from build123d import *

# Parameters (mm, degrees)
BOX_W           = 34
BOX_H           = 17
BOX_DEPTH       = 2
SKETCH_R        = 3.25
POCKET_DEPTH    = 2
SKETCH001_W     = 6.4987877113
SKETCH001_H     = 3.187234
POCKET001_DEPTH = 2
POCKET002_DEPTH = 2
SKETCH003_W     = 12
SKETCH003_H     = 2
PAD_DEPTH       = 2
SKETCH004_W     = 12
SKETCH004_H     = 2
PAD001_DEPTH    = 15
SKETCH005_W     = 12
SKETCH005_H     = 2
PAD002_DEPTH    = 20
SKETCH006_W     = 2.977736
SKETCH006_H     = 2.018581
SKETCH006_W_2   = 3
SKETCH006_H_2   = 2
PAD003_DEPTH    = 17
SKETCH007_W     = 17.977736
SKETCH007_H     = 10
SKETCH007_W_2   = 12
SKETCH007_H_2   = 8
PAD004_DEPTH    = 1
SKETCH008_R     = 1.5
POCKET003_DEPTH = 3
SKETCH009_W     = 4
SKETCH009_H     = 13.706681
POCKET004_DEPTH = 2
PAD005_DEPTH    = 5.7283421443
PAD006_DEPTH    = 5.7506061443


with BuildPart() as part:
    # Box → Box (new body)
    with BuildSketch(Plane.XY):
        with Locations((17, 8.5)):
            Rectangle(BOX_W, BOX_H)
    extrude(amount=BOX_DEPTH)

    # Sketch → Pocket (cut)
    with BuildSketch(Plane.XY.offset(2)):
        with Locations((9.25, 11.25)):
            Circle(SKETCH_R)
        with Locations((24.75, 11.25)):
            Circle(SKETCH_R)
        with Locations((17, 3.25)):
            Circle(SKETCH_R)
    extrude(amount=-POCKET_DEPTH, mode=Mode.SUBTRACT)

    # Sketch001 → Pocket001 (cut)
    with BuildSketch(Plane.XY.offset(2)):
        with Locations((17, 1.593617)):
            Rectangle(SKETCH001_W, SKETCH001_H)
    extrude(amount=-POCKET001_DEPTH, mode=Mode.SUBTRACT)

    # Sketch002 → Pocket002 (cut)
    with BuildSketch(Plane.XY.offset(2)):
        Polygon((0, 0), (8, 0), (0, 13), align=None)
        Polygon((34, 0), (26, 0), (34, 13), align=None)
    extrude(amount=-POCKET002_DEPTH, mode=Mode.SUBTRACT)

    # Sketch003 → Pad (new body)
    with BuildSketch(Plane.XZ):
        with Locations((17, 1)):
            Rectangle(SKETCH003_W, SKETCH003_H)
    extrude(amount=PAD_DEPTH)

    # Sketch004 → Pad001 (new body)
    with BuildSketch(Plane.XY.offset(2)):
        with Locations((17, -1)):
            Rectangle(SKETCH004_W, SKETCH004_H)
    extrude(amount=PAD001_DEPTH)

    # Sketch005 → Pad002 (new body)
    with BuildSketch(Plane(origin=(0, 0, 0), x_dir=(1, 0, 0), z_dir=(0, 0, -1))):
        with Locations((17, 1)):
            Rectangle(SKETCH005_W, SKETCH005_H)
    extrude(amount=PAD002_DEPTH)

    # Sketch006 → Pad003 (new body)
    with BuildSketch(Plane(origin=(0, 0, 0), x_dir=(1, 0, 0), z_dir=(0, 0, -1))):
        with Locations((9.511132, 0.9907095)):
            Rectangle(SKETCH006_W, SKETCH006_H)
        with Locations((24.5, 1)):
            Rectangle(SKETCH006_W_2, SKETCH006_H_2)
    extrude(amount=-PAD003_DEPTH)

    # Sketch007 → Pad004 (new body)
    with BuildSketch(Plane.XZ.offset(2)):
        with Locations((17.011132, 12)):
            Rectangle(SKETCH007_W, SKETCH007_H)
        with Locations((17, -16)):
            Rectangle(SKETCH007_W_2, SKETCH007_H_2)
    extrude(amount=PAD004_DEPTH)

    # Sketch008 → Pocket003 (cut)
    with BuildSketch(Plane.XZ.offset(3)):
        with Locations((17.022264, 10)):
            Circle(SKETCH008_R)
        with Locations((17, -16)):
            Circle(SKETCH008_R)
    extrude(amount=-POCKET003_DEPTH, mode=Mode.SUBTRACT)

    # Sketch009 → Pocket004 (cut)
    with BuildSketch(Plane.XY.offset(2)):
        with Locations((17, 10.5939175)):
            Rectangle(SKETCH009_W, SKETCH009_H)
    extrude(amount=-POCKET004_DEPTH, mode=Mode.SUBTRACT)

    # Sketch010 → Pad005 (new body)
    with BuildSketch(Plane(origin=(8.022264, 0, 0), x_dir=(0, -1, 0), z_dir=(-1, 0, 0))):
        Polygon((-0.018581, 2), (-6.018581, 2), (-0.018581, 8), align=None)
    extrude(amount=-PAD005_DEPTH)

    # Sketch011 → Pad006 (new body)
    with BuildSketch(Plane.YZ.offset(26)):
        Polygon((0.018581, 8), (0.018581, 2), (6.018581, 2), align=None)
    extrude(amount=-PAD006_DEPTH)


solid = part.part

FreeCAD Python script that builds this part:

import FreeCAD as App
import Part
import Sketcher
Q = App.Units.Quantity

doc = App.newDocument("Part")
params = doc.addObject("Spreadsheet::Sheet", "Params")
for row, (alias, value) in enumerate([
    ("sketch1_width", "34 mm"),
    ("sketch1_height", "17 mm"),
    ("pad1_length", "2 mm"),
    ("sketch2_diameter", "6.5 mm"),
    ("pocket1_length", "2 mm"),
    ("pocket2_length", "2 mm"),
    ("sketch4_width", "8 mm"),
    ("sketch4_height", "13 mm"),
    ("pocket3_length", "2 mm"),
    ("sketch5_width", "12 mm"),
    ("sketch5_height", "2 mm"),
    ("pad2_length", "2 mm"),
    ("sketch6_width", "12 mm"),
    ("sketch6_height", "2 mm"),
    ("pad3_length", "15 mm"),
    ("sketch7_width", "12 mm"),
    ("sketch7_height", "2 mm"),
    ("pad4_length", "20 mm"),
    ("sketch8_width", "3 mm"),
    ("sketch8_height", "2 mm"),
    ("pad5_length", "17 mm"),
    ("sketch9_width", "12 mm"),
    ("sketch9_height", "10 mm"),
    ("sketch9_height2", "8 mm"),
    ("pad6_length", "1 mm"),
    ("sketch10_diameter", "3 mm"),
    ("pocket4_length", "3 mm"),
    ("sketch11_width", "4 mm"),
    ("pocket5_length", "2 mm"),
    ("sketch12_width", "6 mm"),
    ("pad7_length", "5.728342 mm"),
    ("sketch13_width", "6 mm"),
    ("pad8_length", "5.750606 mm"),
], start=1):
    params.set(f"A{row}", alias)
    params.set(f"B{row}", "=" + value)
    params.setAlias(f"B{row}", alias)

body = doc.addObject("PartDesign::Body", "Body")

# Sketch on XY plane
sketch1 = doc.addObject("Sketcher::SketchObject", "Sketch")
body.addObject(sketch1)
sketch1.AttachmentSupport = (doc.XY_Plane, [""])
sketch1.MapMode = "FlatFace"
sketch1.addGeometry([
    Part.LineSegment(App.Vector(0, 17, 0), App.Vector(0, 0, 0)),
    Part.LineSegment(App.Vector(0, 0, 0), App.Vector(34, 0, 0)),
    Part.LineSegment(App.Vector(34, 0, 0), App.Vector(34, 17, 0)),
    Part.LineSegment(App.Vector(34, 17, 0), App.Vector(0, 17, 0)),
], False)
sketch1.addConstraint([
    Sketcher.Constraint("Coincident", 0, 2, 1, 1),
    Sketcher.Constraint("Coincident", 1, 2, 2, 1),
    Sketcher.Constraint("Coincident", 2, 2, 3, 1),
    Sketcher.Constraint("Coincident", 3, 2, 0, 1),
    Sketcher.Constraint("Vertical", 0),
    Sketcher.Constraint("Horizontal", 1),
    Sketcher.Constraint("Vertical", 2),
    Sketcher.Constraint("Horizontal", 3),
    Sketcher.Constraint("Coincident", 0, 2, -1, 1),
    Sketcher.Constraint("DistanceX", 1, 1, 1, 2, Q("34 mm")),
    Sketcher.Constraint("DistanceY", 0, 2, 0, 1, Q("17 mm")),
])
sketch1.setExpression("Constraints[9]", "Params.sketch1_width")
sketch1.setExpression("Constraints[10]", "Params.sketch1_height")
pad1 = doc.addObject("PartDesign::Pad", "Pad")
body.addObject(pad1)
pad1.Profile = sketch1
pad1.setExpression("Length", "Params.pad1_length")

# Sketch on XY plane
sketch2 = doc.addObject("Sketcher::SketchObject", "Sketch001")
body.addObject(sketch2)
sketch2.AttachmentSupport = (doc.XY_Plane, [""])
sketch2.MapMode = "FlatFace"
sketch2.AttachmentOffset = App.Placement(App.Vector(0, 0, 2), App.Rotation())
sketch2.addGeometry([
    Part.Circle(App.Vector(9.2, 11.2, 0), App.Vector(0, 0, 1), 3.2),
    Part.Circle(App.Vector(24.8, 11.2, 0), App.Vector(0, 0, 1), 3.2),
    Part.Circle(App.Vector(17, 3.2, 0), App.Vector(0, 0, 1), 3.2),
], False)
sketch2.addConstraint([
    Sketcher.Constraint("Equal", 0, 1),
    Sketcher.Constraint("Equal", 1, 2),
    Sketcher.Constraint("Horizontal", 0, 3, 1, 3),
    Sketcher.Constraint("Diameter", 0, Q("6.5 mm")),
    Sketcher.Constraint("DistanceX", -1, 1, 2, 3, Q("17 mm")),
    Sketcher.Constraint("DistanceY", 2, 3, 0, 3, Q("8 mm")),
    Sketcher.Constraint("DistanceX", 0, 3, 1, 3, Q("15.5 mm")),
    Sketcher.Constraint("DistanceX", -1, 1, 0, 3, Q("9.25 mm")),
    Sketcher.Constraint("DistanceY", -1, 1, 0, 3, Q("11.25 mm")),
])
sketch2.setExpression("Constraints[3]", "Params.sketch2_diameter")
pocket1 = doc.addObject("PartDesign::Pocket", "Pocket")
body.addObject(pocket1)
pocket1.Profile = sketch2
pocket1.setExpression("Length", "Params.pocket1_length")

# Sketch on XY plane
sketch3 = doc.addObject("Sketcher::SketchObject", "Sketch002")
body.addObject(sketch3)
sketch3.AttachmentSupport = (doc.XY_Plane, [""])
sketch3.MapMode = "FlatFace"
sketch3.AttachmentOffset = App.Placement(App.Vector(0, 0, 2), App.Rotation())
sketch3.addGeometry([
    Part.LineSegment(App.Vector(13.8, 3.2, 0), App.Vector(13.8, 0, 0)),
    Part.LineSegment(App.Vector(13.8, 0, 0), App.Vector(20.2, 0, 0)),
    Part.LineSegment(App.Vector(20.2, 0, 0), App.Vector(20.2, 3.2, 0)),
    Part.LineSegment(App.Vector(20.2, 3.2, 0), App.Vector(13.8, 3.2, 0)),
], False)
sketch3.addConstraint([
    Sketcher.Constraint("Coincident", 0, 2, 1, 1),
    Sketcher.Constraint("Coincident", 1, 2, 2, 1),
    Sketcher.Constraint("Coincident", 2, 2, 3, 1),
    Sketcher.Constraint("Coincident", 3, 2, 0, 1),
    Sketcher.Constraint("Vertical", 0),
    Sketcher.Constraint("Horizontal", 1),
    Sketcher.Constraint("Vertical", 2),
    Sketcher.Constraint("Horizontal", 3),
    Sketcher.Constraint("PointOnObject", 0, 2, -1),
    Sketcher.Constraint("DistanceX", 1, 1, 1, 2, Q("6.498788 mm")),
    Sketcher.Constraint("DistanceY", 0, 2, 0, 1, Q("3.187234 mm")),
    Sketcher.Constraint("DistanceX", -1, 1, 0, 2, Q("13.750606 mm")),
])
pocket2 = doc.addObject("PartDesign::Pocket", "Pocket001")
body.addObject(pocket2)
pocket2.Profile = sketch3
pocket2.setExpression("Length", "Params.pocket2_length")

# Sketch on XY plane
sketch4 = doc.addObject("Sketcher::SketchObject", "Sketch003")
body.addObject(sketch4)
sketch4.AttachmentSupport = (doc.XY_Plane, [""])
sketch4.MapMode = "FlatFace"
sketch4.AttachmentOffset = App.Placement(App.Vector(0, 0, 2), App.Rotation())
sketch4.addGeometry([
    Part.LineSegment(App.Vector(0, 0, 0), App.Vector(8, 0, 0)),  # 0
    Part.LineSegment(App.Vector(8, 0, 0), App.Vector(0, 13, 0)),  # 1
    Part.LineSegment(App.Vector(0, 13, 0), App.Vector(0, 0, 0)),  # 2
    Part.LineSegment(App.Vector(26, 0, 0), App.Vector(34, 0, 0)),  # 3
    Part.LineSegment(App.Vector(34, 0, 0), App.Vector(34, 13, 0)),  # 4
    Part.LineSegment(App.Vector(34, 13, 0), App.Vector(26, 0, 0)),  # 5
], False)
sketch4.addConstraint([
    Sketcher.Constraint("Coincident", 0, 2, 1, 1),
    Sketcher.Constraint("Coincident", 1, 2, 2, 1),
    Sketcher.Constraint("Coincident", 2, 2, 0, 1),
    Sketcher.Constraint("Coincident", 3, 2, 4, 1),
    Sketcher.Constraint("Coincident", 4, 2, 5, 1),
    Sketcher.Constraint("Coincident", 5, 2, 3, 1),
    Sketcher.Constraint("Horizontal", 0),
    Sketcher.Constraint("Vertical", 2),
    Sketcher.Constraint("Horizontal", 3),
    Sketcher.Constraint("Vertical", 4),
    Sketcher.Constraint("Coincident", 2, 2, -1, 1),
    Sketcher.Constraint("PointOnObject", 3, 2, -1),
    Sketcher.Constraint("Horizontal", 1, 2, 4, 2),
    Sketcher.Constraint("Equal", 0, 3),
    Sketcher.Constraint("DistanceX", 0, 1, 0, 2, Q("8 mm")),
    Sketcher.Constraint("DistanceY", 2, 2, 2, 1, Q("13 mm")),
    Sketcher.Constraint("DistanceX", -1, 1, 3, 2, Q("34 mm")),
])
sketch4.setExpression("Constraints[14]", "Params.sketch4_width")
sketch4.setExpression("Constraints[15]", "Params.sketch4_height")
pocket3 = doc.addObject("PartDesign::Pocket", "Pocket002")
body.addObject(pocket3)
pocket3.Profile = sketch4
pocket3.setExpression("Length", "Params.pocket3_length")

# Sketch on XZ plane
sketch5 = doc.addObject("Sketcher::SketchObject", "Sketch004")
body.addObject(sketch5)
sketch5.AttachmentSupport = (doc.XZ_Plane, [""])
sketch5.MapMode = "FlatFace"
sketch5.addGeometry([
    Part.LineSegment(App.Vector(11, 2, 0), App.Vector(11, 0, 0)),
    Part.LineSegment(App.Vector(11, 0, 0), App.Vector(23, 0, 0)),
    Part.LineSegment(App.Vector(23, 0, 0), App.Vector(23, 2, 0)),
    Part.LineSegment(App.Vector(23, 2, 0), App.Vector(11, 2, 0)),
], False)
sketch5.addConstraint([
    Sketcher.Constraint("Coincident", 0, 2, 1, 1),
    Sketcher.Constraint("Coincident", 1, 2, 2, 1),
    Sketcher.Constraint("Coincident", 2, 2, 3, 1),
    Sketcher.Constraint("Coincident", 3, 2, 0, 1),
    Sketcher.Constraint("Vertical", 0),
    Sketcher.Constraint("Horizontal", 1),
    Sketcher.Constraint("Vertical", 2),
    Sketcher.Constraint("Horizontal", 3),
    Sketcher.Constraint("PointOnObject", 0, 2, -1),
    Sketcher.Constraint("DistanceX", 1, 1, 1, 2, Q("12 mm")),
    Sketcher.Constraint("DistanceY", 0, 2, 0, 1, Q("2 mm")),
    Sketcher.Constraint("DistanceX", -1, 1, 0, 2, Q("11 mm")),
])
sketch5.setExpression("Constraints[9]", "Params.sketch5_width")
sketch5.setExpression("Constraints[10]", "Params.sketch5_height")
pad2 = doc.addObject("PartDesign::Pad", "Pad001")
body.addObject(pad2)
pad2.Profile = sketch5
pad2.setExpression("Length", "Params.pad2_length")

# Sketch on XY plane
sketch6 = doc.addObject("Sketcher::SketchObject", "Sketch005")
body.addObject(sketch6)
sketch6.AttachmentSupport = (doc.XY_Plane, [""])
sketch6.MapMode = "FlatFace"
sketch6.AttachmentOffset = App.Placement(App.Vector(0, 0, 2), App.Rotation())
sketch6.addGeometry([
    Part.LineSegment(App.Vector(11, 0, 0), App.Vector(11, -2, 0)),
    Part.LineSegment(App.Vector(11, -2, 0), App.Vector(23, -2, 0)),
    Part.LineSegment(App.Vector(23, -2, 0), App.Vector(23, 0, 0)),
    Part.LineSegment(App.Vector(23, 0, 0), App.Vector(11, 0, 0)),
], False)
sketch6.addConstraint([
    Sketcher.Constraint("Coincident", 0, 2, 1, 1),
    Sketcher.Constraint("Coincident", 1, 2, 2, 1),
    Sketcher.Constraint("Coincident", 2, 2, 3, 1),
    Sketcher.Constraint("Coincident", 3, 2, 0, 1),
    Sketcher.Constraint("Vertical", 0),
    Sketcher.Constraint("Horizontal", 1),
    Sketcher.Constraint("Vertical", 2),
    Sketcher.Constraint("Horizontal", 3),
    Sketcher.Constraint("PointOnObject", 2, 2, -1),
    Sketcher.Constraint("DistanceX", 1, 1, 1, 2, Q("12 mm")),
    Sketcher.Constraint("DistanceY", 0, 2, 0, 1, Q("2 mm")),
    Sketcher.Constraint("DistanceX", -1, 1, 0, 2, Q("11 mm")),
])
sketch6.setExpression("Constraints[9]", "Params.sketch6_width")
sketch6.setExpression("Constraints[10]", "Params.sketch6_height")
pad3 = doc.addObject("PartDesign::Pad", "Pad002")
body.addObject(pad3)
pad3.Profile = sketch6
pad3.setExpression("Length", "Params.pad3_length")

# Sketch on XY plane
sketch7 = doc.addObject("Sketcher::SketchObject", "Sketch006")
body.addObject(sketch7)
sketch7.AttachmentSupport = (doc.XY_Plane, [""])
sketch7.MapMode = "FlatFace"
sketch7.addGeometry([
    Part.LineSegment(App.Vector(11, -2, 0), App.Vector(11, 0, 0)),
    Part.LineSegment(App.Vector(11, 0, 0), App.Vector(23, 0, 0)),
    Part.LineSegment(App.Vector(23, 0, 0), App.Vector(23, -2, 0)),
    Part.LineSegment(App.Vector(23, -2, 0), App.Vector(11, -2, 0)),
], False)
sketch7.addConstraint([
    Sketcher.Constraint("Coincident", 0, 2, 1, 1),
    Sketcher.Constraint("Coincident", 1, 2, 2, 1),
    Sketcher.Constraint("Coincident", 2, 2, 3, 1),
    Sketcher.Constraint("Coincident", 3, 2, 0, 1),
    Sketcher.Constraint("Vertical", 0),
    Sketcher.Constraint("Horizontal", 1),
    Sketcher.Constraint("Vertical", 2),
    Sketcher.Constraint("Horizontal", 3),
    Sketcher.Constraint("PointOnObject", 0, 2, -1),
    Sketcher.Constraint("DistanceX", 1, 1, 1, 2, Q("12 mm")),
    Sketcher.Constraint("DistanceY", 0, 1, 0, 2, Q("2 mm")),
    Sketcher.Constraint("DistanceX", -1, 1, 0, 2, Q("11 mm")),
])
sketch7.setExpression("Constraints[9]", "Params.sketch7_width")
sketch7.setExpression("Constraints[10]", "Params.sketch7_height")
pad4 = doc.addObject("PartDesign::Pad", "Pad003")
body.addObject(pad4)
pad4.Profile = sketch7
pad4.setExpression("Length", "Params.pad4_length")
pad4.Reversed = True

# Sketch on XY plane
sketch8 = doc.addObject("Sketcher::SketchObject", "Sketch007")
body.addObject(sketch8)
sketch8.AttachmentSupport = (doc.XY_Plane, [""])
sketch8.MapMode = "FlatFace"
sketch8.addGeometry([
    Part.LineSegment(App.Vector(8, -2, 0), App.Vector(8, 0, 0)),  # 0
    Part.LineSegment(App.Vector(8, 0, 0), App.Vector(11, 0, 0)),  # 1
    Part.LineSegment(App.Vector(11, 0, 0), App.Vector(11, -2, 0)),  # 2
    Part.LineSegment(App.Vector(11, -2, 0), App.Vector(8, -2, 0)),  # 3
    Part.LineSegment(App.Vector(23, -2, 0), App.Vector(23, 0, 0)),  # 4
    Part.LineSegment(App.Vector(23, 0, 0), App.Vector(26, 0, 0)),  # 5
    Part.LineSegment(App.Vector(26, 0, 0), App.Vector(26, -2, 0)),  # 6
    Part.LineSegment(App.Vector(26, -2, 0), App.Vector(23, -2, 0)),  # 7
], False)
sketch8.addConstraint([
    Sketcher.Constraint("Coincident", 0, 2, 1, 1),
    Sketcher.Constraint("Coincident", 1, 2, 2, 1),
    Sketcher.Constraint("Coincident", 2, 2, 3, 1),
    Sketcher.Constraint("Coincident", 3, 2, 0, 1),
    Sketcher.Constraint("Coincident", 4, 2, 5, 1),
    Sketcher.Constraint("Coincident", 5, 2, 6, 1),
    Sketcher.Constraint("Coincident", 6, 2, 7, 1),
    Sketcher.Constraint("Coincident", 7, 2, 4, 1),
    Sketcher.Constraint("Vertical", 0),
    Sketcher.Constraint("Horizontal", 1),
    Sketcher.Constraint("Vertical", 2),
    Sketcher.Constraint("Horizontal", 3),
    Sketcher.Constraint("Vertical", 4),
    Sketcher.Constraint("Horizontal", 5),
    Sketcher.Constraint("Vertical", 6),
    Sketcher.Constraint("Horizontal", 7),
    Sketcher.Constraint("PointOnObject", 4, 2, -1),
    Sketcher.Constraint("Horizontal", 3, 2, 6, 2),
    Sketcher.Constraint("DistanceX", 5, 1, 5, 2, Q("3 mm")),
    Sketcher.Constraint("DistanceY", 4, 1, 4, 2, Q("2 mm")),
    Sketcher.Constraint("DistanceX", -1, 1, 1, 2, Q("11 mm")),
    Sketcher.Constraint("DistanceX", -1, 1, 4, 2, Q("23 mm")),
    Sketcher.Constraint("DistanceY", 0, 1, 0, 2, Q("2.018581 mm")),
    Sketcher.Constraint("DistanceX", 1, 1, 1, 2, Q("2.977736 mm")),
])
sketch8.setExpression("Constraints[18]", "Params.sketch8_width")
sketch8.setExpression("Constraints[19]", "Params.sketch8_height")
pad5 = doc.addObject("PartDesign::Pad", "Pad004")
body.addObject(pad5)
pad5.Profile = sketch8
pad5.setExpression("Length", "Params.pad5_length")

# Sketch on XZ plane
sketch9 = doc.addObject("Sketcher::SketchObject", "Sketch008")
body.addObject(sketch9)
sketch9.AttachmentSupport = (doc.XZ_Plane, [""])
sketch9.MapMode = "FlatFace"
sketch9.AttachmentOffset = App.Placement(App.Vector(0, 0, 2), App.Rotation())
sketch9.addGeometry([
    Part.LineSegment(App.Vector(8, 17, 0), App.Vector(8, 7, 0)),  # 0
    Part.LineSegment(App.Vector(8, 7, 0), App.Vector(26, 7, 0)),  # 1
    Part.LineSegment(App.Vector(26, 7, 0), App.Vector(26, 17, 0)),  # 2
    Part.LineSegment(App.Vector(26, 17, 0), App.Vector(8, 17, 0)),  # 3
    Part.LineSegment(App.Vector(11, -12, 0), App.Vector(11, -20, 0)),  # 4
    Part.LineSegment(App.Vector(11, -20, 0), App.Vector(23, -20, 0)),  # 5
    Part.LineSegment(App.Vector(23, -20, 0), App.Vector(23, -12, 0)),  # 6
    Part.LineSegment(App.Vector(23, -12, 0), App.Vector(11, -12, 0)),  # 7
], False)
sketch9.addConstraint([
    Sketcher.Constraint("Coincident", 0, 2, 1, 1),
    Sketcher.Constraint("Coincident", 1, 2, 2, 1),
    Sketcher.Constraint("Coincident", 2, 2, 3, 1),
    Sketcher.Constraint("Coincident", 3, 2, 0, 1),
    Sketcher.Constraint("Coincident", 4, 2, 5, 1),
    Sketcher.Constraint("Coincident", 5, 2, 6, 1),
    Sketcher.Constraint("Coincident", 6, 2, 7, 1),
    Sketcher.Constraint("Coincident", 7, 2, 4, 1),
    Sketcher.Constraint("Vertical", 0),
    Sketcher.Constraint("Horizontal", 1),
    Sketcher.Constraint("Vertical", 2),
    Sketcher.Constraint("Horizontal", 3),
    Sketcher.Constraint("Vertical", 4),
    Sketcher.Constraint("Horizontal", 5),
    Sketcher.Constraint("Vertical", 6),
    Sketcher.Constraint("Horizontal", 7),
    Sketcher.Constraint("DistanceX", 5, 1, 5, 2, Q("12 mm")),
    Sketcher.Constraint("DistanceY", 0, 2, 0, 1, Q("10 mm")),
    Sketcher.Constraint("DistanceY", 4, 2, 4, 1, Q("8 mm")),
    Sketcher.Constraint("DistanceY", -1, 1, 0, 2, Q("7 mm")),
    Sketcher.Constraint("DistanceX", -1, 1, 1, 2, Q("26 mm")),
    Sketcher.Constraint("DistanceX", -1, 1, 4, 2, Q("11 mm")),
    Sketcher.Constraint("DistanceY", 4, 2, -1, 1, Q("20 mm")),
    Sketcher.Constraint("DistanceX", 1, 1, 1, 2, Q("17.977736 mm")),
])
sketch9.setExpression("Constraints[16]", "Params.sketch9_width")
sketch9.setExpression("Constraints[17]", "Params.sketch9_height")
sketch9.setExpression("Constraints[18]", "Params.sketch9_height2")
pad6 = doc.addObject("PartDesign::Pad", "Pad005")
body.addObject(pad6)
pad6.Profile = sketch9
pad6.setExpression("Length", "Params.pad6_length")

# Sketch on XZ plane
sketch10 = doc.addObject("Sketcher::SketchObject", "Sketch009")
body.addObject(sketch10)
sketch10.AttachmentSupport = (doc.XZ_Plane, [""])
sketch10.MapMode = "FlatFace"
sketch10.AttachmentOffset = App.Placement(App.Vector(0, 0, 3), App.Rotation())
sketch10.addGeometry([
    Part.Circle(App.Vector(17, 10, 0), App.Vector(0, 0, 1), 1.5),
    Part.Circle(App.Vector(17, -16, 0), App.Vector(0, 0, 1), 1.5),
], False)
sketch10.addConstraint([
    Sketcher.Constraint("Equal", 0, 1),
    Sketcher.Constraint("Diameter", 0, Q("3 mm")),
    Sketcher.Constraint("DistanceY", -1, 1, 0, 3, Q("10 mm")),
    Sketcher.Constraint("DistanceX", -1, 1, 1, 3, Q("17 mm")),
    Sketcher.Constraint("DistanceY", 1, 3, -1, 1, Q("16 mm")),
    Sketcher.Constraint("DistanceX", -1, 1, 0, 3, Q("17.022264 mm")),
])
sketch10.setExpression("Constraints[1]", "Params.sketch10_diameter")
pocket4 = doc.addObject("PartDesign::Pocket", "Pocket003")
body.addObject(pocket4)
pocket4.Profile = sketch10
pocket4.setExpression("Length", "Params.pocket4_length")

# Sketch on XY plane
sketch11 = doc.addObject("Sketcher::SketchObject", "Sketch010")
body.addObject(sketch11)
sketch11.AttachmentSupport = (doc.XY_Plane, [""])
sketch11.MapMode = "FlatFace"
sketch11.AttachmentOffset = App.Placement(App.Vector(0, 0, 2), App.Rotation())
sketch11.addGeometry([
    Part.LineSegment(App.Vector(15, 17.4, 0), App.Vector(15, 3.7, 0)),
    Part.LineSegment(App.Vector(15, 3.7, 0), App.Vector(19, 3.7, 0)),
    Part.LineSegment(App.Vector(19, 3.7, 0), App.Vector(19, 17.4, 0)),
    Part.LineSegment(App.Vector(19, 17.4, 0), App.Vector(15, 17.4, 0)),
], False)
sketch11.addConstraint([
    Sketcher.Constraint("Coincident", 0, 2, 1, 1),
    Sketcher.Constraint("Coincident", 1, 2, 2, 1),
    Sketcher.Constraint("Coincident", 2, 2, 3, 1),
    Sketcher.Constraint("Coincident", 3, 2, 0, 1),
    Sketcher.Constraint("Vertical", 0),
    Sketcher.Constraint("Horizontal", 1),
    Sketcher.Constraint("Vertical", 2),
    Sketcher.Constraint("Horizontal", 3),
    Sketcher.Constraint("DistanceX", 1, 1, 1, 2, Q("4 mm")),
    Sketcher.Constraint("DistanceX", -1, 1, 0, 2, Q("15 mm")),
    Sketcher.Constraint("DistanceY", 0, 2, 0, 1, Q("13.706681 mm")),
    Sketcher.Constraint("DistanceY", -1, 1, 2, 2, Q("17.447258 mm")),
])
sketch11.setExpression("Constraints[8]", "Params.sketch11_width")
pocket5 = doc.addObject("PartDesign::Pocket", "Pocket004")
body.addObject(pocket5)
pocket5.Profile = sketch11
pocket5.setExpression("Length", "Params.pocket5_length")

# Sketch on YZ plane
sketch12 = doc.addObject("Sketcher::SketchObject", "Sketch011")
body.addObject(sketch12)
sketch12.AttachmentSupport = (doc.YZ_Plane, [""])
sketch12.MapMode = "FlatFace"
sketch12.AttachmentOffset = App.Placement(App.Vector(0, 0, 8.022264), App.Rotation())
sketch12.addGeometry([
    Part.LineSegment(App.Vector(6, 2, 0), App.Vector(0, 2, 0)),
    Part.LineSegment(App.Vector(0, 2, 0), App.Vector(0, 8, 0)),
    Part.LineSegment(App.Vector(0, 8, 0), App.Vector(6, 2, 0)),
], False)
sketch12.addConstraint([
    Sketcher.Constraint("Coincident", 0, 2, 1, 1),
    Sketcher.Constraint("Coincident", 1, 2, 2, 1),
    Sketcher.Constraint("Coincident", 2, 2, 0, 1),
    Sketcher.Constraint("Horizontal", 0),
    Sketcher.Constraint("Vertical", 1),
    Sketcher.Constraint("Equal", 0, 1),
    Sketcher.Constraint("DistanceX", 0, 2, 0, 1, Q("6 mm")),
    Sketcher.Constraint("DistanceY", -1, 1, 0, 2, Q("2 mm")),
    Sketcher.Constraint("DistanceX", -1, 1, 0, 2, Q("0.018581 mm")),
])
sketch12.setExpression("Constraints[6]", "Params.sketch12_width")
pad7 = doc.addObject("PartDesign::Pad", "Pad006")
body.addObject(pad7)
pad7.Profile = sketch12
pad7.setExpression("Length", "Params.pad7_length")

# Sketch on YZ plane
sketch13 = doc.addObject("Sketcher::SketchObject", "Sketch012")
body.addObject(sketch13)
sketch13.AttachmentSupport = (doc.YZ_Plane, [""])
sketch13.MapMode = "FlatFace"
sketch13.AttachmentOffset = App.Placement(App.Vector(0, 0, 26), App.Rotation())
sketch13.addGeometry([
    Part.LineSegment(App.Vector(0, 8, 0), App.Vector(0, 2, 0)),
    Part.LineSegment(App.Vector(0, 2, 0), App.Vector(6, 2, 0)),
    Part.LineSegment(App.Vector(6, 2, 0), App.Vector(0, 8, 0)),
], False)
sketch13.addConstraint([
    Sketcher.Constraint("Coincident", 0, 2, 1, 1),
    Sketcher.Constraint("Coincident", 1, 2, 2, 1),
    Sketcher.Constraint("Coincident", 2, 2, 0, 1),
    Sketcher.Constraint("Vertical", 0),
    Sketcher.Constraint("Horizontal", 1),
    Sketcher.Constraint("Equal", 1, 0),
    Sketcher.Constraint("DistanceX", 1, 1, 1, 2, Q("6 mm")),
    Sketcher.Constraint("DistanceY", -1, 1, 0, 2, Q("2 mm")),
    Sketcher.Constraint("DistanceX", -1, 1, 0, 2, Q("0.018581 mm")),
])
sketch13.setExpression("Constraints[6]", "Params.sketch13_width")
pad8 = doc.addObject("PartDesign::Pad", "Pad007")
body.addObject(pad8)
pad8.Profile = sketch13
pad8.setExpression("Length", "Params.pad8_length")
pad8.Reversed = True

doc.recompute()
